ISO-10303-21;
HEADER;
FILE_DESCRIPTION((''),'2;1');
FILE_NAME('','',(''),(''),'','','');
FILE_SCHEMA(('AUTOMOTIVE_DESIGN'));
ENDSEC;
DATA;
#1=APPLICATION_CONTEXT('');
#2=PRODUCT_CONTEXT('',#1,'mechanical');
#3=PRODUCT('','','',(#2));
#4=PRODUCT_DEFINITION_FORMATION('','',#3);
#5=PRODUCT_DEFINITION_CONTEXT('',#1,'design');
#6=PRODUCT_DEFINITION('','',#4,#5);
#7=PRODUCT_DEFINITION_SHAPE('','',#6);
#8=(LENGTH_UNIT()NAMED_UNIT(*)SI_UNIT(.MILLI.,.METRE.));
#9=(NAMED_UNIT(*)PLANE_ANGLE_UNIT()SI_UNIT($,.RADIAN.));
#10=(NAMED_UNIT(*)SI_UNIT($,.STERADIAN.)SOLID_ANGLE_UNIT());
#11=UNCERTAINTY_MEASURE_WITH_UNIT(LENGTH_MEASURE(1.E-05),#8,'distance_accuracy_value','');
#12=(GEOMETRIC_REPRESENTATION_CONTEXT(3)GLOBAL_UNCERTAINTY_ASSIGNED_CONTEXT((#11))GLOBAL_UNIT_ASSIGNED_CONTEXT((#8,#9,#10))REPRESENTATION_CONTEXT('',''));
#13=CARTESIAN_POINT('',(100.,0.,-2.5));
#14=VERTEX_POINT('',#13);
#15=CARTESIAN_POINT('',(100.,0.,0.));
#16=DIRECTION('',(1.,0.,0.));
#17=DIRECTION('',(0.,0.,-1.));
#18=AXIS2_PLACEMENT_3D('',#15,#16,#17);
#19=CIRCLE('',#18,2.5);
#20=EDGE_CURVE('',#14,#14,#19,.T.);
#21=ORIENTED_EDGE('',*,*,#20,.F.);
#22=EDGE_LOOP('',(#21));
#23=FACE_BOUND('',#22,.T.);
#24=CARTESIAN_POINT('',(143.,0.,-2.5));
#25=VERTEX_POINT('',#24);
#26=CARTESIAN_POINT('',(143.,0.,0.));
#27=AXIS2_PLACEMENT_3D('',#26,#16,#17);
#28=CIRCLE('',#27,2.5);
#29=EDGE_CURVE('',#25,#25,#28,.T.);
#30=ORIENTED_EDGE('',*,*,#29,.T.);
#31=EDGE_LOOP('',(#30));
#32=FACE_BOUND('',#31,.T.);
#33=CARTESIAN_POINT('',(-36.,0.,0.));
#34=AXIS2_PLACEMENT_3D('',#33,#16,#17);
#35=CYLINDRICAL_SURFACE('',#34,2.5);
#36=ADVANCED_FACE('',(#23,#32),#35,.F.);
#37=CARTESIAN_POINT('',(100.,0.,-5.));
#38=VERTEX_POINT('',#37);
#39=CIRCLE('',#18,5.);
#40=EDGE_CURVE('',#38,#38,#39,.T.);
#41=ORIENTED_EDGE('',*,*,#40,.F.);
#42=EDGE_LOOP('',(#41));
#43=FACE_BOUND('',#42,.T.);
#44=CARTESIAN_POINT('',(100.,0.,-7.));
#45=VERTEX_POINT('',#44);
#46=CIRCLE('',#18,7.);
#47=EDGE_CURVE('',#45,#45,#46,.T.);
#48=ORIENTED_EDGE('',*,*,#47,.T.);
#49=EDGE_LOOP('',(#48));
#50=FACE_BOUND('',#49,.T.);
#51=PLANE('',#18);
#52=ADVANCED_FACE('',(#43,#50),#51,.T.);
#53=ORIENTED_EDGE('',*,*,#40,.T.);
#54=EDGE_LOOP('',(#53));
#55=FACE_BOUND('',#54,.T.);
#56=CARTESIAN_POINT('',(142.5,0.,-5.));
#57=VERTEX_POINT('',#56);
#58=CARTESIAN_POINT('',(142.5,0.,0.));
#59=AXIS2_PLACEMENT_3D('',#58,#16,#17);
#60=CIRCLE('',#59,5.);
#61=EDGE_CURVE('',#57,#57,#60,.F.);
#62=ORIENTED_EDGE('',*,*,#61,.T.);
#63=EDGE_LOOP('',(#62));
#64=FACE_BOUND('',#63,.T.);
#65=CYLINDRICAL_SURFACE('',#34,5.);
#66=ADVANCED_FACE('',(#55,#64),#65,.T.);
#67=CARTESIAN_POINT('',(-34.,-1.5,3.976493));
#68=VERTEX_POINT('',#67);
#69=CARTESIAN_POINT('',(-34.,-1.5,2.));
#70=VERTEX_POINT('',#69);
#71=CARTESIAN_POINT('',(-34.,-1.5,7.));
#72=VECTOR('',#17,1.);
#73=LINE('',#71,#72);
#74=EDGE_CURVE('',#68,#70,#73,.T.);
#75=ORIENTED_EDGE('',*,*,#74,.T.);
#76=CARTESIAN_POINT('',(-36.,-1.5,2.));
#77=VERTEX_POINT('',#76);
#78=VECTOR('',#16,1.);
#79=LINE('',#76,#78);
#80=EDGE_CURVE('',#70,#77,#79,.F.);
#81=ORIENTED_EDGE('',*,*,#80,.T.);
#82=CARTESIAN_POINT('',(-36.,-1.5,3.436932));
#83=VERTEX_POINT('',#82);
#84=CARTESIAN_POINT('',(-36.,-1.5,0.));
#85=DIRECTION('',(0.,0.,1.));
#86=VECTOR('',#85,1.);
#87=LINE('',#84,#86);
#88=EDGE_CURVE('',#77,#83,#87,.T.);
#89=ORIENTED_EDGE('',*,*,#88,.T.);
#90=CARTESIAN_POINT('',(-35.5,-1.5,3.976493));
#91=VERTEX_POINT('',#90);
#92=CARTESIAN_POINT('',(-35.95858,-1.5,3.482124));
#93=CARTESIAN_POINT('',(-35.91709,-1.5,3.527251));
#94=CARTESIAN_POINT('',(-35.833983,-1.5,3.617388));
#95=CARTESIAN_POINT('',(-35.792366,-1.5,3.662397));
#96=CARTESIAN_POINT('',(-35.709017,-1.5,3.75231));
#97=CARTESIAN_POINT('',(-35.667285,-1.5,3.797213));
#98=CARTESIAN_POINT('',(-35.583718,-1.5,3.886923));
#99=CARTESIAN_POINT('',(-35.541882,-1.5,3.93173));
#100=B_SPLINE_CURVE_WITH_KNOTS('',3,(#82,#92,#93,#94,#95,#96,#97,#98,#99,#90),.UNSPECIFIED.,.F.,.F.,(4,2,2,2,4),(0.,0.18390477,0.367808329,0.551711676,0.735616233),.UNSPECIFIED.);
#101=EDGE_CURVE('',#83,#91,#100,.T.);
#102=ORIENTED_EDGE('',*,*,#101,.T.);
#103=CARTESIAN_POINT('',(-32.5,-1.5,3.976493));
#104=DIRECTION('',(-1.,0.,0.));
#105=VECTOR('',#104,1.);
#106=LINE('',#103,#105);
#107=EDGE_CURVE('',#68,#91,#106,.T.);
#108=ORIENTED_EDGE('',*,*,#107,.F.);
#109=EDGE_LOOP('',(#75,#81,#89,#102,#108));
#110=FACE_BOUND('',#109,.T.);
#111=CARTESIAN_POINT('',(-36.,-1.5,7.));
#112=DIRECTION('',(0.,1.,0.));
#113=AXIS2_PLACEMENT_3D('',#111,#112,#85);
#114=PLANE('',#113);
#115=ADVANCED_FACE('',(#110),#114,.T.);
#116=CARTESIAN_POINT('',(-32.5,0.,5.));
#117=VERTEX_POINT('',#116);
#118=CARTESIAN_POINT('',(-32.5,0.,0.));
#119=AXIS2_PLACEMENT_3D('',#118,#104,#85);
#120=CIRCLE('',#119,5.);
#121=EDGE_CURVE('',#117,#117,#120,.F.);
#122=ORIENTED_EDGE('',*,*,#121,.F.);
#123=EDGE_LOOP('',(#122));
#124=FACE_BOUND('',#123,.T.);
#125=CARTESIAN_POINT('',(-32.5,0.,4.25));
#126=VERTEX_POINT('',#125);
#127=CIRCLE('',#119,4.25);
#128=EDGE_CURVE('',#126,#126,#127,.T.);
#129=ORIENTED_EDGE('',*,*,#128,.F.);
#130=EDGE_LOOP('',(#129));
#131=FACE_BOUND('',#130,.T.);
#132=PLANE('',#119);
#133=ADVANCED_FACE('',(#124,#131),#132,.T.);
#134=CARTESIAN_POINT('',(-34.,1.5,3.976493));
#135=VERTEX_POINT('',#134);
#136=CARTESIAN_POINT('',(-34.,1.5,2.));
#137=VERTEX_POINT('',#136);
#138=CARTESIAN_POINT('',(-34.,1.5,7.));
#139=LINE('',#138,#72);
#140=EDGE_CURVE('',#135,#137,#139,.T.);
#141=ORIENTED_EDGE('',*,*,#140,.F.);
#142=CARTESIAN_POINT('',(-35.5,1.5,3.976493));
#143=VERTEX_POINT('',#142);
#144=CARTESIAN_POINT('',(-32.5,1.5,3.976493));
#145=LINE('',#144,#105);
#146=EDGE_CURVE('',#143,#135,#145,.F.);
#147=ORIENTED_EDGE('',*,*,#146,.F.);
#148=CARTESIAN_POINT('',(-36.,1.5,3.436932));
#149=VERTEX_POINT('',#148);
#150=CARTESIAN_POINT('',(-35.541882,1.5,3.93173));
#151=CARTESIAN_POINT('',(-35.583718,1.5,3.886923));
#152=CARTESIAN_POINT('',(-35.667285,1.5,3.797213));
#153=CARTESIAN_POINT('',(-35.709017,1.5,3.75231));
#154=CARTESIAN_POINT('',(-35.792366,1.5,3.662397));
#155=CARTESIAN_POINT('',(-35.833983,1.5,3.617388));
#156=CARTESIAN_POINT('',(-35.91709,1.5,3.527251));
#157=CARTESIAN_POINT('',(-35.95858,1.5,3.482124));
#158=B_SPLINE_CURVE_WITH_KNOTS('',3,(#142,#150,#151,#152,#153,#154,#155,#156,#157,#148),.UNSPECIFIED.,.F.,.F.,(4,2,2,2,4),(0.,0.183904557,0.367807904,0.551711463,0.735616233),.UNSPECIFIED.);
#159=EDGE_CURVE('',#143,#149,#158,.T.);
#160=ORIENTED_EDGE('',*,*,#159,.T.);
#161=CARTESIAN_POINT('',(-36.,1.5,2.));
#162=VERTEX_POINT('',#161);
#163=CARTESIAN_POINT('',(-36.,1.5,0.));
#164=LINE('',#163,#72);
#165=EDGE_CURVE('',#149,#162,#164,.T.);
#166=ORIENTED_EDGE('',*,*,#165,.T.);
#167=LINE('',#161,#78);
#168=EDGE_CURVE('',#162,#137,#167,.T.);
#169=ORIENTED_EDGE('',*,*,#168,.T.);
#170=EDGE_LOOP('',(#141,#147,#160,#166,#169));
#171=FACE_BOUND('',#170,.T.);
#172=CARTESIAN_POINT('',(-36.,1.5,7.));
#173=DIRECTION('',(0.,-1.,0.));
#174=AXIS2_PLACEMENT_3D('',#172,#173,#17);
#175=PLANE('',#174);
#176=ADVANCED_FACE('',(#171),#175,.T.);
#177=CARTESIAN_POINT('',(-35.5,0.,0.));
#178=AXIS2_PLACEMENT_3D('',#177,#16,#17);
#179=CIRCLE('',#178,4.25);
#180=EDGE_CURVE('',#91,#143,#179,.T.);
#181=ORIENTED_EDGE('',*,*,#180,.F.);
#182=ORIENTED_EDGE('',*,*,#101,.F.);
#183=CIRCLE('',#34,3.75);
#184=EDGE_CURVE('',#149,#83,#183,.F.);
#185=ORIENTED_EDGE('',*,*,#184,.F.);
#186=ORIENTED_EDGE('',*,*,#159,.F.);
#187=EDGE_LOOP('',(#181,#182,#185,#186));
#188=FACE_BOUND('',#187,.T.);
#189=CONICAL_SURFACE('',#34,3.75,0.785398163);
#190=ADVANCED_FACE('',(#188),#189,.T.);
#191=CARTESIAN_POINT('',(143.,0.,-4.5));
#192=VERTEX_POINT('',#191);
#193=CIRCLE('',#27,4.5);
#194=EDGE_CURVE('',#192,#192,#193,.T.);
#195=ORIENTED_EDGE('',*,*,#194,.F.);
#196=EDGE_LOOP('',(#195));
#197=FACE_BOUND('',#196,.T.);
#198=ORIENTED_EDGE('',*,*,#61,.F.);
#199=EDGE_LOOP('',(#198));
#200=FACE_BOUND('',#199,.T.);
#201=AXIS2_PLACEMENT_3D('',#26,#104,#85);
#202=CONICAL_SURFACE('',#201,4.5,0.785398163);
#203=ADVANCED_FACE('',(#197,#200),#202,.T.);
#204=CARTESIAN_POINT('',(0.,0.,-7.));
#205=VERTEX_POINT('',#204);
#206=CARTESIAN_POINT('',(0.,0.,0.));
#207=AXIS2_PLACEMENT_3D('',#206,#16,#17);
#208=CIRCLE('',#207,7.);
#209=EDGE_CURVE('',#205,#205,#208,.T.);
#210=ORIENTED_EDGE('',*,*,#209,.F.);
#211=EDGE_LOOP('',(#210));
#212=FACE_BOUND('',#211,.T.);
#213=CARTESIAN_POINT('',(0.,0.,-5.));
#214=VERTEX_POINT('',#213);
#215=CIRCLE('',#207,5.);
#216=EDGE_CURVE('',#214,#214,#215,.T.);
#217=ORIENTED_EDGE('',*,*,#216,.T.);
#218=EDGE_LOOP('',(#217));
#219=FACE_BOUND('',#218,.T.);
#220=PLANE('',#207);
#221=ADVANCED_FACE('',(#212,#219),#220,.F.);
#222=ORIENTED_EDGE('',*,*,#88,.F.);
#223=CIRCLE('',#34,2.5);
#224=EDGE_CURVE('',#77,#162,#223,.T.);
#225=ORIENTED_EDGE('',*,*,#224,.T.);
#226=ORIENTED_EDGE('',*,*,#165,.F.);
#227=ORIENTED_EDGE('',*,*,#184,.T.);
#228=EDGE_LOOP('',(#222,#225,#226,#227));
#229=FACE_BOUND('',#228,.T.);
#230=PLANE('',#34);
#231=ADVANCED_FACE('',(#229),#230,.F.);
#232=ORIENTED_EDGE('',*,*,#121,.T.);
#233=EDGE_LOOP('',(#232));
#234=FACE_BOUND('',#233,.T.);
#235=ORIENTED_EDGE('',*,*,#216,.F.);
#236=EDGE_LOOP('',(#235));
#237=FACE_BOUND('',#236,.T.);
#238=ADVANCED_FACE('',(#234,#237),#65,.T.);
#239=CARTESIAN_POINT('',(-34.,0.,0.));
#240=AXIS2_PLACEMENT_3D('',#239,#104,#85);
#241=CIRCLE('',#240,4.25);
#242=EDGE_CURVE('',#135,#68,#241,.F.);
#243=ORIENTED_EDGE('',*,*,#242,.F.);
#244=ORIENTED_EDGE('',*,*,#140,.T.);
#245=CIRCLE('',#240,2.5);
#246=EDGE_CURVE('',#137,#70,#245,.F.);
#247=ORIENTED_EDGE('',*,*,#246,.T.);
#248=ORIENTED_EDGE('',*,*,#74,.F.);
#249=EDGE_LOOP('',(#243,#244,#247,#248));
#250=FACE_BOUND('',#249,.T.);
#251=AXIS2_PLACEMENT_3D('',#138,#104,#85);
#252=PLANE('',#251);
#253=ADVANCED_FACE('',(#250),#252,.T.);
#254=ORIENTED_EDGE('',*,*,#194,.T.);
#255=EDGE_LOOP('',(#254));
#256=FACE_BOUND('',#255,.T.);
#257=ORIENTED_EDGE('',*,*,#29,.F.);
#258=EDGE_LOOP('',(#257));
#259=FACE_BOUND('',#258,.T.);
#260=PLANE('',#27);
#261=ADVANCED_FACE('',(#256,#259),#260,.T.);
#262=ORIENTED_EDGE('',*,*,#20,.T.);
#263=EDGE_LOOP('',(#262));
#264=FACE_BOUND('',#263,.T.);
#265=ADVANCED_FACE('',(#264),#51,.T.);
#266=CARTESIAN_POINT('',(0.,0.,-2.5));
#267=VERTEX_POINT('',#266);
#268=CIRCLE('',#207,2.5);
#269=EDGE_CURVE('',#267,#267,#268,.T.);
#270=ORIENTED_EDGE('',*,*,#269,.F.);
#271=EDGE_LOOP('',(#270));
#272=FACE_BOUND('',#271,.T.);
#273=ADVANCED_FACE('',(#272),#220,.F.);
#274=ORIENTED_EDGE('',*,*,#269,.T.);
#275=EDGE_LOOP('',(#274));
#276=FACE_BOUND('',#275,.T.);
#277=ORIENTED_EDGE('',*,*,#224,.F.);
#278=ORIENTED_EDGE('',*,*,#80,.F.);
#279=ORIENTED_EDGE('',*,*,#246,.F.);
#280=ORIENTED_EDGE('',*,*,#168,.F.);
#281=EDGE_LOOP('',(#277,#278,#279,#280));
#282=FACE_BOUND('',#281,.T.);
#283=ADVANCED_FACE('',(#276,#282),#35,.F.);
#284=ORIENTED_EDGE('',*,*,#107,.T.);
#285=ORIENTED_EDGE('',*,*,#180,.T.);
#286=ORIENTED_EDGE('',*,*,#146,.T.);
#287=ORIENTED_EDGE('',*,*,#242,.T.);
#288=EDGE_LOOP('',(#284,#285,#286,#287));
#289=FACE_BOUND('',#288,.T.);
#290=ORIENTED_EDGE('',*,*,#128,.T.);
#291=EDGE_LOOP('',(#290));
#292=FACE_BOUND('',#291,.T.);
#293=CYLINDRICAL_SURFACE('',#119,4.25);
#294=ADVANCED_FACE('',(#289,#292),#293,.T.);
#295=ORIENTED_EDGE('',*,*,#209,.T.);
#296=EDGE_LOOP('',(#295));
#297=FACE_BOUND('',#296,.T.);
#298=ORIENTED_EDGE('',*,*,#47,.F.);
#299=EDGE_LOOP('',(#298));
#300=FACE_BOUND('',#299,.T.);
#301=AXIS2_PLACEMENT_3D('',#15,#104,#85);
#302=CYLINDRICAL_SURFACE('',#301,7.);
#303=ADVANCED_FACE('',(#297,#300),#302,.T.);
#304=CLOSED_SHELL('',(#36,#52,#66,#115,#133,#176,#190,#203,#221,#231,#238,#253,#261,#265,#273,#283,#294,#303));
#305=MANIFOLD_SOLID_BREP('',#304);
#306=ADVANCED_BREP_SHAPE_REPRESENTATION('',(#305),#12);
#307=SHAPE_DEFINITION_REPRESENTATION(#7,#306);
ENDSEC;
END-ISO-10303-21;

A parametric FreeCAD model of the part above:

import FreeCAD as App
import Part
import Sketcher
from FreeCAD import Vector


def edges_at(feature, points):
    """Names of the edges that pass closest to the given points."""
    edges = feature.Shape.Edges
    near = lambda p: min(range(len(edges)), key=lambda i: edges[i].distToShape(Part.Vertex(*p))[0])
    return sorted({f"Edge{near(p) + 1}" for p in points})

doc = App.newDocument("Part")
body = doc.addObject("PartDesign::Body", "Body")

# Sketch on YZ plane
sketch1 = body.newObject("Sketcher::SketchObject", "Sketch")
sketch1.AttachmentSupport = (doc.getObject("YZ_Plane"), [""])
sketch1.MapMode = "FlatFace"
sketch1.addGeometry(Part.Circle(Vector(0, 0, 0), Vector(0, 0, 1), 7), False)
sketch1.addConstraint([
    Sketcher.Constraint("Coincident", 0, 3, -1, 1),
    Sketcher.Constraint("Diameter", 0, 14.0),
])
pad1 = body.newObject("PartDesign::Pad", "Pad")
pad1.Profile = sketch1
pad1.Length = 100

# Sketch on YZ plane
sketch2 = body.newObject("Sketcher::SketchObject", "Sketch001")
sketch2.AttachmentSupport = (doc.getObject("YZ_Plane"), [""])
sketch2.MapMode = "FlatFace"
sketch2.addGeometry([
    Part.Circle(Vector(0, 0, 0), Vector(0, 0, 1), 5),
    Part.Circle(Vector(0, 0, 0), Vector(0, 0, 1), 2.5),
], False)
sketch2.addConstraint([
    Sketcher.Constraint("Coincident", 0, 3, -1, 1),
    Sketcher.Constraint("Coincident", 1, 3, -1, 1),
    Sketcher.Constraint("Diameter", 0, 10.0),
    Sketcher.Constraint("Diameter", 1, 5.0),
])
pad2 = body.newObject("PartDesign::Pad", "Pad001")
pad2.Profile = sketch2
pad2.Type = "TwoLengths"
pad2.Length = 143
pad2.Length2 = 36

# Sketch on YZ plane
sketch3 = body.newObject("Sketcher::SketchObject", "Sketch002")
sketch3.AttachmentSupport = (doc.getObject("YZ_Plane"), [""])
sketch3.MapMode = "FlatFace"
sketch3.AttachmentOffset = App.Placement(Vector(0, 0, -36), App.Rotation())
sketch3.addGeometry([
    Part.LineSegment(Vector(26, -26, 0), Vector(-26, -26, 0)),  # 0
    Part.LineSegment(Vector(-26, -26, 0), Vector(-26, 26, 0)),  # 1
    Part.LineSegment(Vector(-26, 26, 0), Vector(26, 26, 0)),  # 2
    Part.LineSegment(Vector(26, 26, 0), Vector(26, -26, 0)),  # 3
    Part.Circle(Vector(0, 0, 0), Vector(0, 0, 1), 4.2),  # 4
], False)
sketch3.addConstraint([
    Sketcher.Constraint("Coincident", 0, 2, 1, 1),
    Sketcher.Constraint("Coincident", 1, 2, 2, 1),
    Sketcher.Constraint("Coincident", 2, 2, 3, 1),
    Sketcher.Constraint("Coincident", 3, 2, 0, 1),
    Sketcher.Constraint("Horizontal", 0),
    Sketcher.Constraint("Vertical", 1),
    Sketcher.Constraint("Horizontal", 2),
    Sketcher.Constraint("Vertical", 3),
    Sketcher.Constraint("Coincident", 4, 3, -1, 1),
    Sketcher.Constraint("Symmetric", 0, 2, 2, 2, -1, 1),
    Sketcher.Constraint("Equal", 2, 1),
    Sketcher.Constraint("Diameter", 4, 8.5),
    Sketcher.Constraint("DistanceX", 0, 2, 0, 1, 52.018),
])
pocket1 = body.newObject("PartDesign::Pocket", "Pocket")
pocket1.Profile = sketch3
pocket1.Length = 3.5
pocket1.Reversed = True

# Sketch on XY plane
sketch4 = body.newObject("Sketcher::SketchObject", "Sketch003")
sketch4.AttachmentSupport = (doc.getObject("XY_Plane"), [""])
sketch4.MapMode = "FlatFace"
sketch4.addGeometry([
    Part.LineSegment(Vector(-36, 1.5, 0), Vector(-36, -1.5, 0)),
    Part.LineSegment(Vector(-36, -1.5, 0), Vector(-34, -1.5, 0)),
    Part.LineSegment(Vector(-34, -1.5, 0), Vector(-34, 1.5, 0)),
    Part.LineSegment(Vector(-34, 1.5, 0), Vector(-36, 1.5, 0)),
], False)
sketch4.addConstraint([
    Sketcher.Constraint("Coincident", 0, 2, 1, 1),
    Sketcher.Constraint("Coincident", 1, 2, 2, 1),
    Sketcher.Constraint("Coincident", 2, 2, 3, 1),
    Sketcher.Constraint("Coincident", 3, 2, 0, 1),
    Sketcher.Constraint("Vertical", 0),
    Sketcher.Constraint("Horizontal", 1),
    Sketcher.Constraint("Vertical", 2),
    Sketcher.Constraint("Horizontal", 3),
    Sketcher.Constraint("DistanceX", 1, 1, 1, 2, 2.0),
    Sketcher.Constraint("DistanceY", 0, 2, 0, 1, 3.0),
    Sketcher.Constraint("DistanceX", 0, 2, -1, 1, 36.0),
    Sketcher.Constraint("DistanceY", 0, 2, -1, 1, 1.5),
])
pocket2 = body.newObject("PartDesign::Pocket", "Pocket001")
pocket2.Profile = sketch4
pocket2.Type = "ThroughAll"
pocket2.Reversed = True
doc.recompute()

chamfer = body.newObject("PartDesign::Chamfer", "Chamfer")
chamfer.Base = (pocket2, edges_at(pocket2, [(-36, 0, -4.25), (143, 0, 5)]))
chamfer.Size = 0.5

doc.recompute()
